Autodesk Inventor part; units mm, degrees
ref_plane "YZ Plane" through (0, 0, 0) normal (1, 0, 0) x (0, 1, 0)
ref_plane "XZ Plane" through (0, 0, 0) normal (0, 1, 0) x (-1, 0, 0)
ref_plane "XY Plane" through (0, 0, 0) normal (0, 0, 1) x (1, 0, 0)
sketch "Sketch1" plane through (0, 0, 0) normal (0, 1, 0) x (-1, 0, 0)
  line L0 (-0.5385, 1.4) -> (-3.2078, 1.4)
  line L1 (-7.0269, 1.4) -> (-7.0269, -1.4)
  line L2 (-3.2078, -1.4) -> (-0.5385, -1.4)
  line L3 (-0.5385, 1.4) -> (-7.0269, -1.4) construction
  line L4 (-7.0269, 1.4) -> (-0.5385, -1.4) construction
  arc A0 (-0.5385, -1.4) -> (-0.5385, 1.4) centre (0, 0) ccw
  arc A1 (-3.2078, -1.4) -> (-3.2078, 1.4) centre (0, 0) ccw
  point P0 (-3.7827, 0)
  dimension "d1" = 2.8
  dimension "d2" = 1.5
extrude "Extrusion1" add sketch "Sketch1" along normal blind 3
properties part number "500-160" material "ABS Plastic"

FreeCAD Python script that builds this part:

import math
import FreeCAD as App
import Part
import Sketcher

V = App.Vector

doc = App.newDocument("Part")
params = doc.addObject("Spreadsheet::Sheet", "Params")
for row, (alias, value) in enumerate([
    ("sketch1_radius", "1.5 mm"),
    ("sketch1_radius2", "3.5 mm"),
    ("pad1_length", "3 mm"),
], start=1):
    params.set(f"A{row}", alias)
    params.set(f"B{row}", "=" + value)
    params.setAlias(f"B{row}", alias)

body = doc.addObject("PartDesign::Body", "Body")

sketch1 = body.newObject("Sketcher::SketchObject", "Sketch")
sketch1.AttachmentSupport = (doc.getObject("XZ_Plane"), [""])
sketch1.MapMode = "FlatFace"
sketch1.addGeometry(Part.LineSegment(V(3.2, 1.4, 0), V(0.5, 1.4, 0)), False)
sketch1.addGeometry(Part.ArcOfCircle(Part.Circle(V(0, 0, 0), V(0, 0, 1), 1.5), math.radians(69), math.radians(291)), False)
sketch1.addGeometry(Part.LineSegment(V(0.5, -1.4, 0), V(3.2, -1.4, 0)), False)
sketch1.addGeometry(Part.ArcOfCircle(Part.Circle(V(0, 0, 0), V(0, 0, 1), 3.5), math.radians(24), math.radians(336)), False)
sketch1.addConstraint(Sketcher.Constraint("Coincident", 0, 2, 1, 1))
sketch1.addConstraint(Sketcher.Constraint("Coincident", 1, 2, 2, 1))
sketch1.addConstraint(Sketcher.Constraint("Coincident", 2, 2, 3, 2))
sketch1.addConstraint(Sketcher.Constraint("Coincident", 3, 1, 0, 1))
sketch1.addConstraint(Sketcher.Constraint("Horizontal", 0))
sketch1.addConstraint(Sketcher.Constraint("Horizontal", 2))
sketch1.addConstraint(Sketcher.Constraint("Coincident", 1, 3, -1, 1))
sketch1.addConstraint(Sketcher.Constraint("Coincident", 3, 3, -1, 1))
sketch1.addConstraint(Sketcher.Constraint("Vertical", 0, 2, 1, 2))
sketch1.addConstraint(Sketcher.Constraint("Radius", 1, 1.5))
sketch1.addConstraint(Sketcher.Constraint("Radius", 3, 3.5))
sketch1.addConstraint(Sketcher.Constraint("DistanceY", 1, 2, 0, 2, 2.8))
sketch1.setExpression("Constraints[9]", "Params.sketch1_radius")
sketch1.setExpression("Constraints[10]", "Params.sketch1_radius2")
pad1 = body.newObject("PartDesign::Pad", "Pad")
pad1.Profile = sketch1
pad1.setExpression("Length", "Params.pad1_length")
pad1.Reversed = True

doc.recompute()
